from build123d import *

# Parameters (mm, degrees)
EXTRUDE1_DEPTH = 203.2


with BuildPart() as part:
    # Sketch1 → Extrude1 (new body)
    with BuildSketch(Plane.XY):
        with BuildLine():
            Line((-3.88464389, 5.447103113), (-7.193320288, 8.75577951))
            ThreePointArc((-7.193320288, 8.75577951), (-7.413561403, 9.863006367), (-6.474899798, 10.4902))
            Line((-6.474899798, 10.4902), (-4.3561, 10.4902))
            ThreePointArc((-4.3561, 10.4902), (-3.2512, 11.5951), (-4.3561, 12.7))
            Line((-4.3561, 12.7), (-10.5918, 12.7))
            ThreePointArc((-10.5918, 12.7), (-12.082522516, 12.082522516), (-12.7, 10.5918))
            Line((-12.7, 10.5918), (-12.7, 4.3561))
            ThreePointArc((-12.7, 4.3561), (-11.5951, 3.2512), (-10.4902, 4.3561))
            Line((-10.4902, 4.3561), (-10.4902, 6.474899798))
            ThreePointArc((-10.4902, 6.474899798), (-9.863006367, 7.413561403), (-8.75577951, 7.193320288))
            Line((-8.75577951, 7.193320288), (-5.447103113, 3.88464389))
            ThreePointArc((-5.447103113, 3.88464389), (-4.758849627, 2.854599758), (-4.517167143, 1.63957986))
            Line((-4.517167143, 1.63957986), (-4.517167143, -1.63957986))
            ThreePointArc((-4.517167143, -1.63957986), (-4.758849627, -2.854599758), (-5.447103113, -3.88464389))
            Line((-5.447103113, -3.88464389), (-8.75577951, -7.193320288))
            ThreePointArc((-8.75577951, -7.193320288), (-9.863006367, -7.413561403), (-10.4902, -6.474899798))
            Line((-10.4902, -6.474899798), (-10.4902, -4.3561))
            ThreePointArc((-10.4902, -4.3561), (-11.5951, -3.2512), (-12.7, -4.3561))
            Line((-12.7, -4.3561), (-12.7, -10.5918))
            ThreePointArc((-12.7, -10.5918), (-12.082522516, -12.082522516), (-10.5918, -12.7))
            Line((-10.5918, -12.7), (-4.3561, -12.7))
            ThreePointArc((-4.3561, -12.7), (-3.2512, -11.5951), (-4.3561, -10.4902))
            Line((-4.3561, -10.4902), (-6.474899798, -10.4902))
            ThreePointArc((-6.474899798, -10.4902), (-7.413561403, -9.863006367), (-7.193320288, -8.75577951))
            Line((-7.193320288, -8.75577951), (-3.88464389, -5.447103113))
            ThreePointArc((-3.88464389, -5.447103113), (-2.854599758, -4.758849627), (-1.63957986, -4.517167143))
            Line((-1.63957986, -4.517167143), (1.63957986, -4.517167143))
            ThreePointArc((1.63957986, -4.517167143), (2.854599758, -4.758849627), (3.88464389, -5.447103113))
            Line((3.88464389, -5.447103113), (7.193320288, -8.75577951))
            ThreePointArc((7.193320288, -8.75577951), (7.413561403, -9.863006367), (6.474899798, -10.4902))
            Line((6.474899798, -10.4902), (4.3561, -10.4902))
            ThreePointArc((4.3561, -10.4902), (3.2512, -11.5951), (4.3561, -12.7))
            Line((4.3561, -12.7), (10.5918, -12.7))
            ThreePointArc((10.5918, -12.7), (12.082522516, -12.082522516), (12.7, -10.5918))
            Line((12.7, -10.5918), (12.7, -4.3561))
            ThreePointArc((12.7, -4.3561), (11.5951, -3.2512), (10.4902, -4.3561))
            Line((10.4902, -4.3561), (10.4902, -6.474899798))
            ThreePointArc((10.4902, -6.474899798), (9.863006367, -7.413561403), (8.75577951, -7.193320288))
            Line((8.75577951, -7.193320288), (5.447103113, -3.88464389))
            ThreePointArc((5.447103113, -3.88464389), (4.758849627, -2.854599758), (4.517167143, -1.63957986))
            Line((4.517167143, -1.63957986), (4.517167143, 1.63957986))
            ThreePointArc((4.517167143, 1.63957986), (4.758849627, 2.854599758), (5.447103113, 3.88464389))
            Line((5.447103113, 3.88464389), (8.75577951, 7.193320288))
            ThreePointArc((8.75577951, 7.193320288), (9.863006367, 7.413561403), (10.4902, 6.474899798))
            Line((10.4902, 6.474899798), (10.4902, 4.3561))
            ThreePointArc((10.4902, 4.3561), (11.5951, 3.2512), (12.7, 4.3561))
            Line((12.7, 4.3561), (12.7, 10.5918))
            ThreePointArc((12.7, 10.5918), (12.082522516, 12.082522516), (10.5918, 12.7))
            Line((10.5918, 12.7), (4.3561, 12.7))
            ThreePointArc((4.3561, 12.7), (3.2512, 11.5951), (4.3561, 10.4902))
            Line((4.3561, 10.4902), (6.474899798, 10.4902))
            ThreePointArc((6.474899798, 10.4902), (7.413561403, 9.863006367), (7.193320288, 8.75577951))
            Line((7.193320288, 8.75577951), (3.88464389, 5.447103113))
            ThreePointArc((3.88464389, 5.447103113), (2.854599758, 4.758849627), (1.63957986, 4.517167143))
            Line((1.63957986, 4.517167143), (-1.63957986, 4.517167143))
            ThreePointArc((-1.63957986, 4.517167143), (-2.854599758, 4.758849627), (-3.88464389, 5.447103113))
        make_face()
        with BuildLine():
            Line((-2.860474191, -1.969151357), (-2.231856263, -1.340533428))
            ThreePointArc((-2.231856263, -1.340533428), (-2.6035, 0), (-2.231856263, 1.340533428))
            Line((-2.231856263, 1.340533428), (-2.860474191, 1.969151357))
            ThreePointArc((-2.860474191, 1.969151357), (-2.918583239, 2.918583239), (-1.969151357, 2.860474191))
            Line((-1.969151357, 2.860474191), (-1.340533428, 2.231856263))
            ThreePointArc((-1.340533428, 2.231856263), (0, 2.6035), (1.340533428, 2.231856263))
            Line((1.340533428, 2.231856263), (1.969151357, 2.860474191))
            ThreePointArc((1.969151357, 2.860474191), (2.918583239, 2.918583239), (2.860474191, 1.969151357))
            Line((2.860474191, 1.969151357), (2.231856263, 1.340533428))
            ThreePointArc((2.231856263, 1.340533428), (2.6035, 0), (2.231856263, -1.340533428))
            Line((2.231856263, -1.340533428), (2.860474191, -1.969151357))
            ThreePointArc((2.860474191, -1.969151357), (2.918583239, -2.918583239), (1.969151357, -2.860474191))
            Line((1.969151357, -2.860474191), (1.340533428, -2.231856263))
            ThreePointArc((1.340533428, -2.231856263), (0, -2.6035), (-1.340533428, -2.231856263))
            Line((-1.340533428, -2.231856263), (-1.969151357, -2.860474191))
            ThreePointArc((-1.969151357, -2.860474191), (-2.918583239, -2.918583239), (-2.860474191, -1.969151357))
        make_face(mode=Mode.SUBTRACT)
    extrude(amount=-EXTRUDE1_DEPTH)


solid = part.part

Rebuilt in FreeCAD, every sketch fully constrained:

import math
import FreeCAD as App
import Part
import Sketcher
from FreeCAD import Vector
Q = App.Units.Quantity

doc = App.newDocument("Part")
body = doc.addObject("PartDesign::Body", "Body")

# Sketch on XY plane
sketch1 = body.newObject("Sketcher::SketchObject", "Sketch")
sketch1.AttachmentSupport = (doc.getObject("XY_Plane"), [""])
sketch1.MapMode = "FlatFace"
sketch1.addGeometry(Part.LineSegment(Vector(-3.9, 5.4, 0), Vector(-7.2, 8.8, 0)), False)
sketch1.addGeometry(Part.ArcOfCircle(Part.Circle(Vector(-6.5, 9.5, 0), Vector(0, 0, 1), 1), math.radians(90), math.radians(225)), False)
sketch1.addGeometry(Part.LineSegment(Vector(-6.5, 10.5, 0), Vector(-4.4, 10.5, 0)), False)
sketch1.addGeometry(Part.ArcOfCircle(Part.Circle(Vector(-4.4, 11.6, 0), Vector(0, 0, 1), 1.1), math.radians(-90), math.radians(90)), False)
sketch1.addGeometry(Part.LineSegment(Vector(-4.4, 12.7, 0), Vector(-10.6, 12.7, 0)), False)
sketch1.addGeometry(Part.ArcOfCircle(Part.Circle(Vector(-10.6, 10.6, 0), Vector(0, 0, 1), 2.1), math.radians(90), math.radians(180)), False)
sketch1.addGeometry(Part.LineSegment(Vector(-12.7, 10.6, 0), Vector(-12.7, 4.4, 0)), False)
sketch1.addGeometry(Part.ArcOfCircle(Part.Circle(Vector(-11.6, 4.4, 0), Vector(0, 0, 1), 1.1), math.radians(180), math.radians(360)), False)
sketch1.addGeometry(Part.LineSegment(Vector(-10.5, 4.4, 0), Vector(-10.5, 6.5, 0)), False)
sketch1.addGeometry(Part.ArcOfCircle(Part.Circle(Vector(-9.5, 6.5, 0), Vector(0, 0, 1), 1), math.radians(45), math.radians(180)), False)
sketch1.addGeometry(Part.LineSegment(Vector(-8.8, 7.2, 0), Vector(-5.4, 3.9, 0)), False)
sketch1.addGeometry(Part.ArcOfCircle(Part.Circle(Vector(-7.7, 1.6, 0), Vector(0, 0, 1), 3.2), math.radians(0), math.radians(45)), False)
sketch1.addGeometry(Part.LineSegment(Vector(-4.5, 1.6, 0), Vector(-4.5, -1.6, 0)), False)
sketch1.addGeometry(Part.ArcOfCircle(Part.Circle(Vector(-7.7, -1.6, 0), Vector(0, 0, 1), 3.2), math.radians(-45), math.radians(0)), False)
sketch1.addGeometry(Part.LineSegment(Vector(-5.4, -3.9, 0), Vector(-8.8, -7.2, 0)), False)
sketch1.addGeometry(Part.ArcOfCircle(Part.Circle(Vector(-9.5, -6.5, 0), Vector(0, 0, 1), 1), math.radians(180), math.radians(315)), False)
sketch1.addGeometry(Part.LineSegment(Vector(-10.5, -6.5, 0), Vector(-10.5, -4.4, 0)), False)
sketch1.addGeometry(Part.ArcOfCircle(Part.Circle(Vector(-11.6, -4.4, 0), Vector(0, 0, 1), 1.1), math.radians(0), math.radians(180)), False)
sketch1.addGeometry(Part.LineSegment(Vector(-12.7, -4.4, 0), Vector(-12.7, -10.6, 0)), False)
sketch1.addGeometry(Part.ArcOfCircle(Part.Circle(Vector(-10.6, -10.6, 0), Vector(0, 0, 1), 2.1), math.radians(180), math.radians(270)), False)
sketch1.addGeometry(Part.LineSegment(Vector(-10.6, -12.7, 0), Vector(-4.4, -12.7, 0)), False)
sketch1.addGeometry(Part.ArcOfCircle(Part.Circle(Vector(-4.4, -11.6, 0), Vector(0, 0, 1), 1.1), math.radians(-90), math.radians(90)), False)
sketch1.addGeometry(Part.LineSegment(Vector(-4.4, -10.5, 0), Vector(-6.5, -10.5, 0)), False)
sketch1.addGeometry(Part.ArcOfCircle(Part.Circle(Vector(-6.5, -9.5, 0), Vector(0, 0, 1), 1), math.radians(135), math.radians(270)), False)
sketch1.addGeometry(Part.LineSegment(Vector(-7.2, -8.8, 0), Vector(-3.9, -5.4, 0)), False)
sketch1.addGeometry(Part.ArcOfCircle(Part.Circle(Vector(-1.6, -7.7, 0), Vector(0, 0, 1), 3.2), math.radians(90), math.radians(135)), False)
sketch1.addGeometry(Part.LineSegment(Vector(-1.6, -4.5, 0), Vector(1.6, -4.5, 0)), False)
sketch1.addGeometry(Part.ArcOfCircle(Part.Circle(Vector(1.6, -7.7, 0), Vector(0, 0, 1), 3.2), math.radians(45), math.radians(90)), False)
sketch1.addGeometry(Part.LineSegment(Vector(3.9, -5.4, 0), Vector(7.2, -8.8, 0)), False)
sketch1.addGeometry(Part.ArcOfCircle(Part.Circle(Vector(6.5, -9.5, 0), Vector(0, 0, 1), 1), math.radians(-90), math.radians(45)), False)
sketch1.addGeometry(Part.LineSegment(Vector(6.5, -10.5, 0), Vector(4.4, -10.5, 0)), False)
sketch1.addGeometry(Part.ArcOfCircle(Part.Circle(Vector(4.4, -11.6, 0), Vector(0, 0, 1), 1.1), math.radians(90), math.radians(270)), False)
sketch1.addGeometry(Part.LineSegment(Vector(4.4, -12.7, 0), Vector(10.6, -12.7, 0)), False)
sketch1.addGeometry(Part.ArcOfCircle(Part.Circle(Vector(10.6, -10.6, 0), Vector(0, 0, 1), 2.1), math.radians(-90), math.radians(0)), False)
sketch1.addGeometry(Part.LineSegment(Vector(12.7, -10.6, 0), Vector(12.7, -4.4, 0)), False)
sketch1.addGeometry(Part.ArcOfCircle(Part.Circle(Vector(11.6, -4.4, 0), Vector(0, 0, 1), 1.1), math.radians(0), math.radians(180)), False)
sketch1.addGeometry(Part.LineSegment(Vector(10.5, -4.4, 0), Vector(10.5, -6.5, 0)), False)
sketch1.addGeometry(Part.ArcOfCircle(Part.Circle(Vector(9.5, -6.5, 0), Vector(0, 0, 1), 1), math.radians(-135), math.radians(0)), False)
sketch1.addGeometry(Part.LineSegment(Vector(8.8, -7.2, 0), Vector(5.4, -3.9, 0)), False)
sketch1.addGeometry(Part.ArcOfCircle(Part.Circle(Vector(7.7, -1.6, 0), Vector(0, 0, 1), 3.2), math.radians(180), math.radians(225)), False)
sketch1.addGeometry(Part.LineSegment(Vector(4.5, -1.6, 0), Vector(4.5, 1.6, 0)), False)
sketch1.addGeometry(Part.ArcOfCircle(Part.Circle(Vector(7.7, 1.6, 0), Vector(0, 0, 1), 3.2), math.radians(135), math.radians(180)), False)
sketch1.addGeometry(Part.LineSegment(Vector(5.4, 3.9, 0), Vector(8.8, 7.2, 0)), False)
sketch1.addGeometry(Part.ArcOfCircle(Part.Circle(Vector(9.5, 6.5, 0), Vector(0, 0, 1), 1), math.radians(0), math.radians(135)), False)
sketch1.addGeometry(Part.LineSegment(Vector(10.5, 6.5, 0), Vector(10.5, 4.4, 0)), False)
sketch1.addGeometry(Part.ArcOfCircle(Part.Circle(Vector(11.6, 4.4, 0), Vector(0, 0, 1), 1.1), math.radians(180), math.radians(360)), False)
sketch1.addGeometry(Part.LineSegment(Vector(12.7, 4.4, 0), Vector(12.7, 10.6, 0)), False)
sketch1.addGeometry(Part.ArcOfCircle(Part.Circle(Vector(10.6, 10.6, 0), Vector(0, 0, 1), 2.1), math.radians(0), math.radians(90)), False)
sketch1.addGeometry(Part.LineSegment(Vector(10.6, 12.7, 0), Vector(4.4, 12.7, 0)), False)
sketch1.addGeometry(Part.ArcOfCircle(Part.Circle(Vector(4.4, 11.6, 0), Vector(0, 0, 1), 1.1), math.radians(90), math.radians(270)), False)
sketch1.addGeometry(Part.LineSegment(Vector(4.4, 10.5, 0), Vector(6.5, 10.5, 0)), False)
sketch1.addGeometry(Part.ArcOfCircle(Part.Circle(Vector(6.5, 9.5, 0), Vector(0, 0, 1), 1), math.radians(-45), math.radians(90)), False)
sketch1.addGeometry(Part.LineSegment(Vector(7.2, 8.8, 0), Vector(3.9, 5.4, 0)), False)
sketch1.addGeometry(Part.ArcOfCircle(Part.Circle(Vector(1.6, 7.7, 0), Vector(0, 0, 1), 3.2), math.radians(-90), math.radians(-45)), False)
sketch1.addGeometry(Part.LineSegment(Vector(1.6, 4.5, 0), Vector(-1.6, 4.5, 0)), False)
sketch1.addGeometry(Part.ArcOfCircle(Part.Circle(Vector(-1.6, 7.7, 0), Vector(0, 0, 1), 3.2), math.radians(-135), math.radians(-90)), False)
sketch1.addGeometry(Part.ArcOfCircle(Part.Circle(Vector(-2.5, -2.5, 0), Vector(0, 0, 1), 0.6), math.radians(128), math.radians(322)), False)
sketch1.addGeometry(Part.LineSegment(Vector(-2.9, -2, 0), Vector(-2.2, -1.3, 0)), False)
sketch1.addGeometry(Part.ArcOfCircle(Part.Circle(Vector(0, 0, 0), Vector(0, 0, 1), 2.6), math.radians(149), math.radians(211)), False)
sketch1.addGeometry(Part.LineSegment(Vector(-2.2, 1.3, 0), Vector(-2.9, 2, 0)), False)
sketch1.addGeometry(Part.ArcOfCircle(Part.Circle(Vector(-2.5, 2.5, 0), Vector(0, 0, 1), 0.6), math.radians(38), math.radians(232)), False)
sketch1.addGeometry(Part.LineSegment(Vector(-2, 2.9, 0), Vector(-1.3, 2.2, 0)), False)
sketch1.addGeometry(Part.ArcOfCircle(Part.Circle(Vector(0, 0, 0), Vector(0, 0, 1), 2.6), math.radians(59), math.radians(121)), False)
sketch1.addGeometry(Part.LineSegment(Vector(1.3, 2.2, 0), Vector(2, 2.9, 0)), False)
sketch1.addGeometry(Part.ArcOfCircle(Part.Circle(Vector(2.5, 2.5, 0), Vector(0, 0, 1), 0.6), math.radians(-52), math.radians(142)), False)
sketch1.addGeometry(Part.LineSegment(Vector(2.9, 2, 0), Vector(2.2, 1.3, 0)), False)
sketch1.addGeometry(Part.ArcOfCircle(Part.Circle(Vector(0, 0, 0), Vector(0, 0, 1), 2.6), math.radians(-31), math.radians(31)), False)
sketch1.addGeometry(Part.LineSegment(Vector(2.2, -1.3, 0), Vector(2.9, -2, 0)), False)
sketch1.addGeometry(Part.ArcOfCircle(Part.Circle(Vector(2.5, -2.5, 0), Vector(0, 0, 1), 0.6), math.radians(-142), math.radians(52)), False)
sketch1.addGeometry(Part.LineSegment(Vector(2, -2.9, 0), Vector(1.3, -2.2, 0)), False)
sketch1.addGeometry(Part.ArcOfCircle(Part.Circle(Vector(0, 0, 0), Vector(0, 0, 1), 2.6), math.radians(-121), math.radians(-59)), False)
sketch1.addGeometry(Part.LineSegment(Vector(-1.3, -2.2, 0), Vector(-2, -2.9, 0)), False)
sketch1.addConstraint(Sketcher.Constraint("Tangent", 0, 2, 1, 2))
sketch1.addConstraint(Sketcher.Constraint("Tangent", 1, 1, 2, 1))
sketch1.addConstraint(Sketcher.Constraint("Tangent", 2, 2, 3, 1))
sketch1.addConstraint(Sketcher.Constraint("Tangent", 3, 2, 4, 1))
sketch1.addConstraint(Sketcher.Constraint("Tangent", 4, 2, 5, 1))
sketch1.addConstraint(Sketcher.Constraint("Tangent", 5, 2, 6, 1))
sketch1.addConstraint(Sketcher.Constraint("Tangent", 6, 2, 7, 1))
sketch1.addConstraint(Sketcher.Constraint("Tangent", 7, 2, 8, 1))
sketch1.addConstraint(Sketcher.Constraint("Tangent", 8, 2, 9, 2))
sketch1.addConstraint(Sketcher.Constraint("Tangent", 9, 1, 10, 1))
sketch1.addConstraint(Sketcher.Constraint("Tangent", 10, 2, 11, 2))
sketch1.addConstraint(Sketcher.Constraint("Tangent", 11, 1, 12, 1))
sketch1.addConstraint(Sketcher.Constraint("Tangent", 12, 2, 13, 2))
sketch1.addConstraint(Sketcher.Constraint("Tangent", 13, 1, 14, 1))
sketch1.addConstraint(Sketcher.Constraint("Tangent", 14, 2, 15, 2))
sketch1.addConstraint(Sketcher.Constraint("Tangent", 15, 1, 16, 1))
sketch1.addConstraint(Sketcher.Constraint("Tangent", 16, 2, 17, 1))
sketch1.addConstraint(Sketcher.Constraint("Tangent", 17, 2, 18, 1))
sketch1.addConstraint(Sketcher.Constraint("Tangent", 18, 2, 19, 1))
sketch1.addConstraint(Sketcher.Constraint("Tangent", 19, 2, 20, 1))
sketch1.addConstraint(Sketcher.Constraint("Tangent", 20, 2, 21, 1))
sketch1.addConstraint(Sketcher.Constraint("Tangent", 21, 2, 22, 1))
sketch1.addConstraint(Sketcher.Constraint("Tangent", 22, 2, 23, 2))
sketch1.addConstraint(Sketcher.Constraint("Tangent", 23, 1, 24, 1))
sketch1.addConstraint(Sketcher.Constraint("Tangent", 24, 2, 25, 2))
sketch1.addConstraint(Sketcher.Constraint("Tangent", 25, 1, 26, 1))
sketch1.addConstraint(Sketcher.Constraint("Tangent", 26, 2, 27, 2))
sketch1.addConstraint(Sketcher.Constraint("Tangent", 27, 1, 28, 1))
sketch1.addConstraint(Sketcher.Constraint("Tangent", 28, 2, 29, 2))
sketch1.addConstraint(Sketcher.Constraint("Tangent", 29, 1, 30, 1))
sketch1.addConstraint(Sketcher.Constraint("Tangent", 30, 2, 31, 1))
sketch1.addConstraint(Sketcher.Constraint("Tangent", 31, 2, 32, 1))
sketch1.addConstraint(Sketcher.Constraint("Tangent", 32, 2, 33, 1))
sketch1.addConstraint(Sketcher.Constraint("Tangent", 33, 2, 34, 1))
sketch1.addConstraint(Sketcher.Constraint("Tangent", 34, 2, 35, 1))
sketch1.addConstraint(Sketcher.Constraint("Tangent", 35, 2, 36, 1))
sketch1.addConstraint(Sketcher.Constraint("Tangent", 36, 2, 37, 2))
sketch1.addConstraint(Sketcher.Constraint("Tangent", 37, 1, 38, 1))
sketch1.addConstraint(Sketcher.Constraint("Tangent", 38, 2, 39, 2))
sketch1.addConstraint(Sketcher.Constraint("Tangent", 39, 1, 40, 1))
sketch1.addConstraint(Sketcher.Constraint("Tangent", 40, 2, 41, 2))
sketch1.addConstraint(Sketcher.Constraint("Tangent", 41, 1, 42, 1))
sketch1.addConstraint(Sketcher.Constraint("Tangent", 42, 2, 43, 2))
sketch1.addConstraint(Sketcher.Constraint("Tangent", 43, 1, 44, 1))
sketch1.addConstraint(Sketcher.Constraint("Tangent", 44, 2, 45, 1))
sketch1.addConstraint(Sketcher.Constraint("Tangent", 45, 2, 46, 1))
sketch1.addConstraint(Sketcher.Constraint("Tangent", 46, 2, 47, 1))
sketch1.addConstraint(Sketcher.Constraint("Tangent", 47, 2, 48, 1))
sketch1.addConstraint(Sketcher.Constraint("Tangent", 48, 2, 49, 1))
sketch1.addConstraint(Sketcher.Constraint("Tangent", 49, 2, 50, 1))
sketch1.addConstraint(Sketcher.Constraint("Tangent", 50, 2, 51, 2))
sketch1.addConstraint(Sketcher.Constraint("Tangent", 51, 1, 52, 1))
sketch1.addConstraint(Sketcher.Constraint("Tangent", 52, 2, 53, 2))
sketch1.addConstraint(Sketcher.Constraint("Tangent", 53, 1, 54, 1))
sketch1.addConstraint(Sketcher.Constraint("Tangent", 54, 2, 55, 2))
sketch1.addConstraint(Sketcher.Constraint("Tangent", 55, 1, 0, 1))
sketch1.addConstraint(Sketcher.Constraint("Coincident", 56, 1, 57, 1))
sketch1.addConstraint(Sketcher.Constraint("Coincident", 57, 2, 58, 2))
sketch1.addConstraint(Sketcher.Constraint("Coincident", 58, 1, 59, 1))
sketch1.addConstraint(Sketcher.Constraint("Coincident", 59, 2, 60, 2))
sketch1.addConstraint(Sketcher.Constraint("Coincident", 60, 1, 61, 1))
sketch1.addConstraint(Sketcher.Constraint("Coincident", 61, 2, 62, 2))
sketch1.addConstraint(Sketcher.Constraint("Coincident", 62, 1, 63, 1))
sketch1.addConstraint(Sketcher.Constraint("Coincident", 63, 2, 64, 2))
sketch1.addConstraint(Sketcher.Constraint("Coincident", 64, 1, 65, 1))
sketch1.addConstraint(Sketcher.Constraint("Coincident", 65, 2, 66, 2))
sketch1.addConstraint(Sketcher.Constraint("Coincident", 66, 1, 67, 1))
sketch1.addConstraint(Sketcher.Constraint("Coincident", 67, 2, 68, 2))
sketch1.addConstraint(Sketcher.Constraint("Coincident", 68, 1, 69, 1))
sketch1.addConstraint(Sketcher.Constraint("Coincident", 69, 2, 70, 2))
sketch1.addConstraint(Sketcher.Constraint("Coincident", 70, 1, 71, 1))
sketch1.addConstraint(Sketcher.Constraint("Coincident", 71, 2, 56, 2))
sketch1.addConstraint(Sketcher.Constraint("Horizontal", 2))
sketch1.addConstraint(Sketcher.Constraint("Horizontal", 4))
sketch1.addConstraint(Sketcher.Constraint("Vertical", 6))
sketch1.addConstraint(Sketcher.Constraint("Vertical", 8))
sketch1.addConstraint(Sketcher.Constraint("Vertical", 12))
sketch1.addConstraint(Sketcher.Constraint("Vertical", 16))
sketch1.addConstraint(Sketcher.Constraint("Vertical", 18))
sketch1.addConstraint(Sketcher.Constraint("Horizontal", 20))
sketch1.addConstraint(Sketcher.Constraint("Horizontal", 22))
sketch1.addConstraint(Sketcher.Constraint("Horizontal", 26))
sketch1.addConstraint(Sketcher.Constraint("Horizontal", 30))
sketch1.addConstraint(Sketcher.Constraint("Horizontal", 32))
sketch1.addConstraint(Sketcher.Constraint("Vertical", 34))
sketch1.addConstraint(Sketcher.Constraint("Vertical", 36))
sketch1.addConstraint(Sketcher.Constraint("Vertical", 40))
sketch1.addConstraint(Sketcher.Constraint("Vertical", 44))
sketch1.addConstraint(Sketcher.Constraint("Vertical", 46))
sketch1.addConstraint(Sketcher.Constraint("Horizontal", 48))
sketch1.addConstraint(Sketcher.Constraint("Horizontal", 50))
sketch1.addConstraint(Sketcher.Constraint("Horizontal", 54))
sketch1.addConstraint(Sketcher.Constraint("Coincident", 58, 3, -1, 1))
sketch1.addConstraint(Sketcher.Constraint("Coincident", 62, 3, -1, 1))
sketch1.addConstraint(Sketcher.Constraint("Coincident", 66, 3, -1, 1))
sketch1.addConstraint(Sketcher.Constraint("Coincident", 70, 3, -1, 1))
sketch1.addConstraint(Sketcher.Constraint("Equal", 3, 7))
sketch1.addConstraint(Sketcher.Constraint("Equal", 1, 9))
sketch1.addConstraint(Sketcher.Constraint("Equal", 11, 13))
sketch1.addConstraint(Sketcher.Constraint("Equal", 9, 15))
sketch1.addConstraint(Sketcher.Constraint("Equal", 7, 17))
sketch1.addConstraint(Sketcher.Constraint("Equal", 5, 19))
sketch1.addConstraint(Sketcher.Constraint("Equal", 17, 21))
sketch1.addConstraint(Sketcher.Constraint("Equal", 15, 23))
sketch1.addConstraint(Sketcher.Constraint("Equal", 13, 25))
sketch1.addConstraint(Sketcher.Constraint("Equal", 25, 27))
sketch1.addConstraint(Sketcher.Constraint("Equal", 23, 29))
sketch1.addConstraint(Sketcher.Constraint("Equal", 21, 31))
sketch1.addConstraint(Sketcher.Constraint("Equal", 19, 33))
sketch1.addConstraint(Sketcher.Constraint("Equal", 31, 35))
sketch1.addConstraint(Sketcher.Constraint("Equal", 29, 37))
sketch1.addConstraint(Sketcher.Constraint("Equal", 27, 39))
sketch1.addConstraint(Sketcher.Constraint("Equal", 39, 41))
sketch1.addConstraint(Sketcher.Constraint("Equal", 37, 43))
sketch1.addConstraint(Sketcher.Constraint("Equal", 35, 45))
sketch1.addConstraint(Sketcher.Constraint("Equal", 33, 47))
sketch1.addConstraint(Sketcher.Constraint("Equal", 45, 49))
sketch1.addConstraint(Sketcher.Constraint("Equal", 43, 51))
sketch1.addConstraint(Sketcher.Constraint("Equal", 41, 53))
sketch1.addConstraint(Sketcher.Constraint("Equal", 53, 55))
sketch1.addConstraint(Sketcher.Constraint("Equal", 56, 60))
sketch1.addConstraint(Sketcher.Constraint("Equal", 58, 62))
sketch1.addConstraint(Sketcher.Constraint("Equal", 60, 64))
sketch1.addConstraint(Sketcher.Constraint("Equal", 62, 66))
sketch1.addConstraint(Sketcher.Constraint("Equal", 64, 68))
sketch1.addConstraint(Sketcher.Constraint("Equal", 66, 70))
sketch1.addConstraint(Sketcher.Constraint("Symmetric", 1, 3, 29, 3, -1, 1))
sketch1.addConstraint(Sketcher.Constraint("Symmetric", 7, 3, 35, 3, -1, 1))
sketch1.addConstraint(Sketcher.Constraint("Symmetric", 11, 3, 39, 3, -1, 1))
sketch1.addConstraint(Sketcher.Constraint("Symmetric", 15, 3, 43, 3, -1, 1))
sketch1.addConstraint(Sketcher.Constraint("Symmetric", 21, 3, 49, 3, -1, 1))
sketch1.addConstraint(Sketcher.Constraint("Symmetric", 25, 3, 53, 3, -1, 1))
sketch1.addConstraint(Sketcher.Constraint("Symmetric", 56, 3, 64, 3, -1, 1))
sketch1.addConstraint(Sketcher.Constraint("Symmetric", 60, 3, 68, 3, -1, 1))
sketch1.addConstraint(Sketcher.Constraint("Symmetric", 23, 3, 29, 3, -2))
sketch1.addConstraint(Sketcher.Constraint("Symmetric", 17, 3, 35, 3, -2))
sketch1.addConstraint(Sketcher.Constraint("Symmetric", 60, 3, 64, 3, -2))
sketch1.addConstraint(Sketcher.Constraint("Symmetric", 14, 2, 37, 1, -2))
sketch1.addConstraint(Sketcher.Constraint("Symmetric", 10, 2, 41, 1, -2))
sketch1.addConstraint(Sketcher.Constraint("Symmetric", 0, 2, 51, 1, -2))
sketch1.addConstraint(Sketcher.Constraint("Parallel", 0, 10))
sketch1.addConstraint(Sketcher.Constraint("Perpendicular", 10, 14))
sketch1.addConstraint(Sketcher.Constraint("Perpendicular", 24, 28))
sketch1.addConstraint(Sketcher.Constraint("Parallel", 52, 57))
sketch1.addConstraint(Sketcher.Constraint("Perpendicular", 57, 59))
sketch1.addConstraint(Sketcher.Constraint("Parallel", 59, 61))
sketch1.addConstraint(Sketcher.Constraint("Perpendicular", 61, 63))
sketch1.addConstraint(Sketcher.Constraint("Parallel", 63, 65))
sketch1.addConstraint(Sketcher.Constraint("Perpendicular", 65, 67))
sketch1.addConstraint(Sketcher.Constraint("Parallel", 67, 69))
sketch1.addConstraint(Sketcher.Constraint("Perpendicular", 69, 71))
sketch1.addConstraint(Sketcher.Constraint("Horizontal", 7, 3, 45, 3))
sketch1.addConstraint(Sketcher.Constraint("Horizontal", 61, 2, 62, 1))
sketch1.addConstraint(Sketcher.Constraint("Horizontal", 59, 2, 64, 1))
sketch1.addConstraint(Sketcher.Constraint("Horizontal", 57, 2, 66, 1))
sketch1.addConstraint(Sketcher.Constraint("Horizontal", 69, 2, 70, 1))
sketch1.addConstraint(Sketcher.Constraint("Vertical", 3, 3, 21, 3))
sketch1.addConstraint(Sketcher.Constraint("Vertical", 31, 3, 49, 3))
sketch1.addConstraint(Sketcher.Constraint("Vertical", 57, 2, 58, 1))
sketch1.addConstraint(Sketcher.Constraint("Vertical", 63, 2, 68, 1))
sketch1.addConstraint(Sketcher.Constraint("Equal", 48, 6))
sketch1.addConstraint(Sketcher.Constraint("Equal", 50, 8))
sketch1.addConstraint(Sketcher.Constraint("Equal", 54, 12))
sketch1.addConstraint(Sketcher.Constraint("Equal", 0, 10))
sketch1.addConstraint(Sketcher.Constraint("Equal", 59, 61))
sketch1.addConstraint(Sketcher.Constraint("Radius", 1, Q("0.04 in")))
sketch1.addConstraint(Sketcher.Constraint("Radius", 5, Q("0.083 in")))
sketch1.addConstraint(Sketcher.Constraint("Radius", 11, Q("0.125 in")))
sketch1.addConstraint(Sketcher.Constraint("Radius", 56, Q("0.025 in")))
sketch1.addConstraint(Sketcher.Constraint("DistanceY", -1, 1, 3, 2, Q("0.5 in")))
sketch1.addConstraint(Sketcher.Constraint("Radius", 3, Q("0.0435 in")))
sketch1.addConstraint(Sketcher.Constraint("Radius", 58, Q("0.1025 in")))
sketch1.addConstraint(Sketcher.Constraint("Distance", 57, Q("0.035 in")))
sketch1.addConstraint(Sketcher.Constraint("DistanceX", 4, 2, 4, 1, Q("0.2455 in")))
sketch1.addConstraint(Sketcher.Constraint("DistanceX", 2, 1, 2, 2, 2.1188))
sketch1.addConstraint(Sketcher.Constraint("DistanceX", 26, 1, 26, 2, 3.27916))
sketch1.addConstraint(Sketcher.Constraint("DistanceX", 56, 3, -1, 1, 2.46957))
sketch1.addConstraint(Sketcher.Constraint("DistanceY", 56, 3, -1, 1, 2.46957))
pad1 = body.newObject("PartDesign::Pad", "Pad")
pad1.Profile = sketch1
pad1.Length = Q("8 in")
pad1.Reversed = True

doc.recompute()
